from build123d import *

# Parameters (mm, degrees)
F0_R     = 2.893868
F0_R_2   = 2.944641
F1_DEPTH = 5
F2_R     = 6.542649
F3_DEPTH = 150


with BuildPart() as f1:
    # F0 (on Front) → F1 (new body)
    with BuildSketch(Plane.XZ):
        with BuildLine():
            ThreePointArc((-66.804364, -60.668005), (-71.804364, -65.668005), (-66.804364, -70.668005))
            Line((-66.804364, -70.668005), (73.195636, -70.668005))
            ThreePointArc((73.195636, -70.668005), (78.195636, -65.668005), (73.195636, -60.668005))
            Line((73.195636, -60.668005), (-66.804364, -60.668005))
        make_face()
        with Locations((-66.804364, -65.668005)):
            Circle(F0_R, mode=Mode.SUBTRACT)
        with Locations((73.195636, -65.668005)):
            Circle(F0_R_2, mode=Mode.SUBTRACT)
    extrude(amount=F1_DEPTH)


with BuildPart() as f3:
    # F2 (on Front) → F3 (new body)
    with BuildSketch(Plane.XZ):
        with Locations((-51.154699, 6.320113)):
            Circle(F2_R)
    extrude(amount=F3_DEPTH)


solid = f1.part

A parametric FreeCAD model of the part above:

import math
import FreeCAD as App
import Part
import Sketcher
from FreeCAD import Vector
Q = App.Units.Quantity

doc = App.newDocument("Part")
body = doc.addObject("PartDesign::Body", "Body")

# Sketch on XZ plane
sketch1 = body.newObject("Sketcher::SketchObject", "Sketch")
sketch1.AttachmentSupport = (doc.getObject("XZ_Plane"), [""])
sketch1.MapMode = "FlatFace"
sketch1.addGeometry(Part.ArcOfCircle(Part.Circle(Vector(-66.8, -65.7, 0), Vector(0, 0, 1), 5), math.radians(90), math.radians(270)), False)
sketch1.addGeometry(Part.LineSegment(Vector(-66.8, -70.7, 0), Vector(73.2, -70.7, 0)), False)
sketch1.addGeometry(Part.ArcOfCircle(Part.Circle(Vector(73.2, -65.7, 0), Vector(0, 0, 1), 5), math.radians(-90), math.radians(90)), False)
sketch1.addGeometry(Part.LineSegment(Vector(73.2, -60.7, 0), Vector(-66.8, -60.7, 0)), False)
sketch1.addGeometry(Part.Circle(Vector(-66.8, -65.7, 0), Vector(0, 0, 1), 2.9), False)
sketch1.addGeometry(Part.Circle(Vector(73.2, -65.7, 0), Vector(0, 0, 1), 2.9), False)
sketch1.addConstraint(Sketcher.Constraint("Tangent", 0, 2, 1, 1))
sketch1.addConstraint(Sketcher.Constraint("Tangent", 1, 2, 2, 1))
sketch1.addConstraint(Sketcher.Constraint("Tangent", 2, 2, 3, 1))
sketch1.addConstraint(Sketcher.Constraint("Tangent", 3, 2, 0, 1))
sketch1.addConstraint(Sketcher.Constraint("Horizontal", 1))
sketch1.addConstraint(Sketcher.Constraint("Horizontal", 3))
sketch1.addConstraint(Sketcher.Constraint("Coincident", 4, 3, 0, 3))
sketch1.addConstraint(Sketcher.Constraint("Coincident", 5, 3, 2, 3))
sketch1.addConstraint(Sketcher.Constraint("Radius", 0, Q("5 mm")))
sketch1.addConstraint(Sketcher.Constraint("DistanceX", 1, 1, 1, 2, Q("140 mm")))
sketch1.addConstraint(Sketcher.Constraint("Diameter", 5, Q("5.889282 mm")))
sketch1.addConstraint(Sketcher.Constraint("Diameter", 4, Q("5.787736 mm")))
sketch1.addConstraint(Sketcher.Constraint("DistanceX", 0, 3, -1, 1, Q("66.804364 mm")))
sketch1.addConstraint(Sketcher.Constraint("DistanceY", 0, 3, -1, 1, Q("65.668005 mm")))
pad1 = body.newObject("PartDesign::Pad", "Pad")
pad1.Profile = sketch1
pad1.Length = 5
body2 = doc.addObject("PartDesign::Body", "Body001")

# Sketch on XZ plane
sketch2 = body2.newObject("Sketcher::SketchObject", "Sketch001")
sketch2.AttachmentSupport = (doc.getObject("XZ_Plane001"), [""])
sketch2.MapMode = "FlatFace"
sketch2.addGeometry(Part.Circle(Vector(-51, 6, 0), Vector(0, 0, 1), 7), False)
sketch2.addConstraint(Sketcher.Constraint("Diameter", 0, Q("13.085298 mm")))
sketch2.addConstraint(Sketcher.Constraint("DistanceX", 0, 3, -1, 1, Q("51.154699 mm")))
sketch2.addConstraint(Sketcher.Constraint("DistanceY", -1, 1, 0, 3, Q("6.320113 mm")))
pad2 = body2.newObject("PartDesign::Pad", "Pad001")
pad2.Profile = sketch2
pad2.Length = 150
body2.Visibility = False

doc.recompute()
